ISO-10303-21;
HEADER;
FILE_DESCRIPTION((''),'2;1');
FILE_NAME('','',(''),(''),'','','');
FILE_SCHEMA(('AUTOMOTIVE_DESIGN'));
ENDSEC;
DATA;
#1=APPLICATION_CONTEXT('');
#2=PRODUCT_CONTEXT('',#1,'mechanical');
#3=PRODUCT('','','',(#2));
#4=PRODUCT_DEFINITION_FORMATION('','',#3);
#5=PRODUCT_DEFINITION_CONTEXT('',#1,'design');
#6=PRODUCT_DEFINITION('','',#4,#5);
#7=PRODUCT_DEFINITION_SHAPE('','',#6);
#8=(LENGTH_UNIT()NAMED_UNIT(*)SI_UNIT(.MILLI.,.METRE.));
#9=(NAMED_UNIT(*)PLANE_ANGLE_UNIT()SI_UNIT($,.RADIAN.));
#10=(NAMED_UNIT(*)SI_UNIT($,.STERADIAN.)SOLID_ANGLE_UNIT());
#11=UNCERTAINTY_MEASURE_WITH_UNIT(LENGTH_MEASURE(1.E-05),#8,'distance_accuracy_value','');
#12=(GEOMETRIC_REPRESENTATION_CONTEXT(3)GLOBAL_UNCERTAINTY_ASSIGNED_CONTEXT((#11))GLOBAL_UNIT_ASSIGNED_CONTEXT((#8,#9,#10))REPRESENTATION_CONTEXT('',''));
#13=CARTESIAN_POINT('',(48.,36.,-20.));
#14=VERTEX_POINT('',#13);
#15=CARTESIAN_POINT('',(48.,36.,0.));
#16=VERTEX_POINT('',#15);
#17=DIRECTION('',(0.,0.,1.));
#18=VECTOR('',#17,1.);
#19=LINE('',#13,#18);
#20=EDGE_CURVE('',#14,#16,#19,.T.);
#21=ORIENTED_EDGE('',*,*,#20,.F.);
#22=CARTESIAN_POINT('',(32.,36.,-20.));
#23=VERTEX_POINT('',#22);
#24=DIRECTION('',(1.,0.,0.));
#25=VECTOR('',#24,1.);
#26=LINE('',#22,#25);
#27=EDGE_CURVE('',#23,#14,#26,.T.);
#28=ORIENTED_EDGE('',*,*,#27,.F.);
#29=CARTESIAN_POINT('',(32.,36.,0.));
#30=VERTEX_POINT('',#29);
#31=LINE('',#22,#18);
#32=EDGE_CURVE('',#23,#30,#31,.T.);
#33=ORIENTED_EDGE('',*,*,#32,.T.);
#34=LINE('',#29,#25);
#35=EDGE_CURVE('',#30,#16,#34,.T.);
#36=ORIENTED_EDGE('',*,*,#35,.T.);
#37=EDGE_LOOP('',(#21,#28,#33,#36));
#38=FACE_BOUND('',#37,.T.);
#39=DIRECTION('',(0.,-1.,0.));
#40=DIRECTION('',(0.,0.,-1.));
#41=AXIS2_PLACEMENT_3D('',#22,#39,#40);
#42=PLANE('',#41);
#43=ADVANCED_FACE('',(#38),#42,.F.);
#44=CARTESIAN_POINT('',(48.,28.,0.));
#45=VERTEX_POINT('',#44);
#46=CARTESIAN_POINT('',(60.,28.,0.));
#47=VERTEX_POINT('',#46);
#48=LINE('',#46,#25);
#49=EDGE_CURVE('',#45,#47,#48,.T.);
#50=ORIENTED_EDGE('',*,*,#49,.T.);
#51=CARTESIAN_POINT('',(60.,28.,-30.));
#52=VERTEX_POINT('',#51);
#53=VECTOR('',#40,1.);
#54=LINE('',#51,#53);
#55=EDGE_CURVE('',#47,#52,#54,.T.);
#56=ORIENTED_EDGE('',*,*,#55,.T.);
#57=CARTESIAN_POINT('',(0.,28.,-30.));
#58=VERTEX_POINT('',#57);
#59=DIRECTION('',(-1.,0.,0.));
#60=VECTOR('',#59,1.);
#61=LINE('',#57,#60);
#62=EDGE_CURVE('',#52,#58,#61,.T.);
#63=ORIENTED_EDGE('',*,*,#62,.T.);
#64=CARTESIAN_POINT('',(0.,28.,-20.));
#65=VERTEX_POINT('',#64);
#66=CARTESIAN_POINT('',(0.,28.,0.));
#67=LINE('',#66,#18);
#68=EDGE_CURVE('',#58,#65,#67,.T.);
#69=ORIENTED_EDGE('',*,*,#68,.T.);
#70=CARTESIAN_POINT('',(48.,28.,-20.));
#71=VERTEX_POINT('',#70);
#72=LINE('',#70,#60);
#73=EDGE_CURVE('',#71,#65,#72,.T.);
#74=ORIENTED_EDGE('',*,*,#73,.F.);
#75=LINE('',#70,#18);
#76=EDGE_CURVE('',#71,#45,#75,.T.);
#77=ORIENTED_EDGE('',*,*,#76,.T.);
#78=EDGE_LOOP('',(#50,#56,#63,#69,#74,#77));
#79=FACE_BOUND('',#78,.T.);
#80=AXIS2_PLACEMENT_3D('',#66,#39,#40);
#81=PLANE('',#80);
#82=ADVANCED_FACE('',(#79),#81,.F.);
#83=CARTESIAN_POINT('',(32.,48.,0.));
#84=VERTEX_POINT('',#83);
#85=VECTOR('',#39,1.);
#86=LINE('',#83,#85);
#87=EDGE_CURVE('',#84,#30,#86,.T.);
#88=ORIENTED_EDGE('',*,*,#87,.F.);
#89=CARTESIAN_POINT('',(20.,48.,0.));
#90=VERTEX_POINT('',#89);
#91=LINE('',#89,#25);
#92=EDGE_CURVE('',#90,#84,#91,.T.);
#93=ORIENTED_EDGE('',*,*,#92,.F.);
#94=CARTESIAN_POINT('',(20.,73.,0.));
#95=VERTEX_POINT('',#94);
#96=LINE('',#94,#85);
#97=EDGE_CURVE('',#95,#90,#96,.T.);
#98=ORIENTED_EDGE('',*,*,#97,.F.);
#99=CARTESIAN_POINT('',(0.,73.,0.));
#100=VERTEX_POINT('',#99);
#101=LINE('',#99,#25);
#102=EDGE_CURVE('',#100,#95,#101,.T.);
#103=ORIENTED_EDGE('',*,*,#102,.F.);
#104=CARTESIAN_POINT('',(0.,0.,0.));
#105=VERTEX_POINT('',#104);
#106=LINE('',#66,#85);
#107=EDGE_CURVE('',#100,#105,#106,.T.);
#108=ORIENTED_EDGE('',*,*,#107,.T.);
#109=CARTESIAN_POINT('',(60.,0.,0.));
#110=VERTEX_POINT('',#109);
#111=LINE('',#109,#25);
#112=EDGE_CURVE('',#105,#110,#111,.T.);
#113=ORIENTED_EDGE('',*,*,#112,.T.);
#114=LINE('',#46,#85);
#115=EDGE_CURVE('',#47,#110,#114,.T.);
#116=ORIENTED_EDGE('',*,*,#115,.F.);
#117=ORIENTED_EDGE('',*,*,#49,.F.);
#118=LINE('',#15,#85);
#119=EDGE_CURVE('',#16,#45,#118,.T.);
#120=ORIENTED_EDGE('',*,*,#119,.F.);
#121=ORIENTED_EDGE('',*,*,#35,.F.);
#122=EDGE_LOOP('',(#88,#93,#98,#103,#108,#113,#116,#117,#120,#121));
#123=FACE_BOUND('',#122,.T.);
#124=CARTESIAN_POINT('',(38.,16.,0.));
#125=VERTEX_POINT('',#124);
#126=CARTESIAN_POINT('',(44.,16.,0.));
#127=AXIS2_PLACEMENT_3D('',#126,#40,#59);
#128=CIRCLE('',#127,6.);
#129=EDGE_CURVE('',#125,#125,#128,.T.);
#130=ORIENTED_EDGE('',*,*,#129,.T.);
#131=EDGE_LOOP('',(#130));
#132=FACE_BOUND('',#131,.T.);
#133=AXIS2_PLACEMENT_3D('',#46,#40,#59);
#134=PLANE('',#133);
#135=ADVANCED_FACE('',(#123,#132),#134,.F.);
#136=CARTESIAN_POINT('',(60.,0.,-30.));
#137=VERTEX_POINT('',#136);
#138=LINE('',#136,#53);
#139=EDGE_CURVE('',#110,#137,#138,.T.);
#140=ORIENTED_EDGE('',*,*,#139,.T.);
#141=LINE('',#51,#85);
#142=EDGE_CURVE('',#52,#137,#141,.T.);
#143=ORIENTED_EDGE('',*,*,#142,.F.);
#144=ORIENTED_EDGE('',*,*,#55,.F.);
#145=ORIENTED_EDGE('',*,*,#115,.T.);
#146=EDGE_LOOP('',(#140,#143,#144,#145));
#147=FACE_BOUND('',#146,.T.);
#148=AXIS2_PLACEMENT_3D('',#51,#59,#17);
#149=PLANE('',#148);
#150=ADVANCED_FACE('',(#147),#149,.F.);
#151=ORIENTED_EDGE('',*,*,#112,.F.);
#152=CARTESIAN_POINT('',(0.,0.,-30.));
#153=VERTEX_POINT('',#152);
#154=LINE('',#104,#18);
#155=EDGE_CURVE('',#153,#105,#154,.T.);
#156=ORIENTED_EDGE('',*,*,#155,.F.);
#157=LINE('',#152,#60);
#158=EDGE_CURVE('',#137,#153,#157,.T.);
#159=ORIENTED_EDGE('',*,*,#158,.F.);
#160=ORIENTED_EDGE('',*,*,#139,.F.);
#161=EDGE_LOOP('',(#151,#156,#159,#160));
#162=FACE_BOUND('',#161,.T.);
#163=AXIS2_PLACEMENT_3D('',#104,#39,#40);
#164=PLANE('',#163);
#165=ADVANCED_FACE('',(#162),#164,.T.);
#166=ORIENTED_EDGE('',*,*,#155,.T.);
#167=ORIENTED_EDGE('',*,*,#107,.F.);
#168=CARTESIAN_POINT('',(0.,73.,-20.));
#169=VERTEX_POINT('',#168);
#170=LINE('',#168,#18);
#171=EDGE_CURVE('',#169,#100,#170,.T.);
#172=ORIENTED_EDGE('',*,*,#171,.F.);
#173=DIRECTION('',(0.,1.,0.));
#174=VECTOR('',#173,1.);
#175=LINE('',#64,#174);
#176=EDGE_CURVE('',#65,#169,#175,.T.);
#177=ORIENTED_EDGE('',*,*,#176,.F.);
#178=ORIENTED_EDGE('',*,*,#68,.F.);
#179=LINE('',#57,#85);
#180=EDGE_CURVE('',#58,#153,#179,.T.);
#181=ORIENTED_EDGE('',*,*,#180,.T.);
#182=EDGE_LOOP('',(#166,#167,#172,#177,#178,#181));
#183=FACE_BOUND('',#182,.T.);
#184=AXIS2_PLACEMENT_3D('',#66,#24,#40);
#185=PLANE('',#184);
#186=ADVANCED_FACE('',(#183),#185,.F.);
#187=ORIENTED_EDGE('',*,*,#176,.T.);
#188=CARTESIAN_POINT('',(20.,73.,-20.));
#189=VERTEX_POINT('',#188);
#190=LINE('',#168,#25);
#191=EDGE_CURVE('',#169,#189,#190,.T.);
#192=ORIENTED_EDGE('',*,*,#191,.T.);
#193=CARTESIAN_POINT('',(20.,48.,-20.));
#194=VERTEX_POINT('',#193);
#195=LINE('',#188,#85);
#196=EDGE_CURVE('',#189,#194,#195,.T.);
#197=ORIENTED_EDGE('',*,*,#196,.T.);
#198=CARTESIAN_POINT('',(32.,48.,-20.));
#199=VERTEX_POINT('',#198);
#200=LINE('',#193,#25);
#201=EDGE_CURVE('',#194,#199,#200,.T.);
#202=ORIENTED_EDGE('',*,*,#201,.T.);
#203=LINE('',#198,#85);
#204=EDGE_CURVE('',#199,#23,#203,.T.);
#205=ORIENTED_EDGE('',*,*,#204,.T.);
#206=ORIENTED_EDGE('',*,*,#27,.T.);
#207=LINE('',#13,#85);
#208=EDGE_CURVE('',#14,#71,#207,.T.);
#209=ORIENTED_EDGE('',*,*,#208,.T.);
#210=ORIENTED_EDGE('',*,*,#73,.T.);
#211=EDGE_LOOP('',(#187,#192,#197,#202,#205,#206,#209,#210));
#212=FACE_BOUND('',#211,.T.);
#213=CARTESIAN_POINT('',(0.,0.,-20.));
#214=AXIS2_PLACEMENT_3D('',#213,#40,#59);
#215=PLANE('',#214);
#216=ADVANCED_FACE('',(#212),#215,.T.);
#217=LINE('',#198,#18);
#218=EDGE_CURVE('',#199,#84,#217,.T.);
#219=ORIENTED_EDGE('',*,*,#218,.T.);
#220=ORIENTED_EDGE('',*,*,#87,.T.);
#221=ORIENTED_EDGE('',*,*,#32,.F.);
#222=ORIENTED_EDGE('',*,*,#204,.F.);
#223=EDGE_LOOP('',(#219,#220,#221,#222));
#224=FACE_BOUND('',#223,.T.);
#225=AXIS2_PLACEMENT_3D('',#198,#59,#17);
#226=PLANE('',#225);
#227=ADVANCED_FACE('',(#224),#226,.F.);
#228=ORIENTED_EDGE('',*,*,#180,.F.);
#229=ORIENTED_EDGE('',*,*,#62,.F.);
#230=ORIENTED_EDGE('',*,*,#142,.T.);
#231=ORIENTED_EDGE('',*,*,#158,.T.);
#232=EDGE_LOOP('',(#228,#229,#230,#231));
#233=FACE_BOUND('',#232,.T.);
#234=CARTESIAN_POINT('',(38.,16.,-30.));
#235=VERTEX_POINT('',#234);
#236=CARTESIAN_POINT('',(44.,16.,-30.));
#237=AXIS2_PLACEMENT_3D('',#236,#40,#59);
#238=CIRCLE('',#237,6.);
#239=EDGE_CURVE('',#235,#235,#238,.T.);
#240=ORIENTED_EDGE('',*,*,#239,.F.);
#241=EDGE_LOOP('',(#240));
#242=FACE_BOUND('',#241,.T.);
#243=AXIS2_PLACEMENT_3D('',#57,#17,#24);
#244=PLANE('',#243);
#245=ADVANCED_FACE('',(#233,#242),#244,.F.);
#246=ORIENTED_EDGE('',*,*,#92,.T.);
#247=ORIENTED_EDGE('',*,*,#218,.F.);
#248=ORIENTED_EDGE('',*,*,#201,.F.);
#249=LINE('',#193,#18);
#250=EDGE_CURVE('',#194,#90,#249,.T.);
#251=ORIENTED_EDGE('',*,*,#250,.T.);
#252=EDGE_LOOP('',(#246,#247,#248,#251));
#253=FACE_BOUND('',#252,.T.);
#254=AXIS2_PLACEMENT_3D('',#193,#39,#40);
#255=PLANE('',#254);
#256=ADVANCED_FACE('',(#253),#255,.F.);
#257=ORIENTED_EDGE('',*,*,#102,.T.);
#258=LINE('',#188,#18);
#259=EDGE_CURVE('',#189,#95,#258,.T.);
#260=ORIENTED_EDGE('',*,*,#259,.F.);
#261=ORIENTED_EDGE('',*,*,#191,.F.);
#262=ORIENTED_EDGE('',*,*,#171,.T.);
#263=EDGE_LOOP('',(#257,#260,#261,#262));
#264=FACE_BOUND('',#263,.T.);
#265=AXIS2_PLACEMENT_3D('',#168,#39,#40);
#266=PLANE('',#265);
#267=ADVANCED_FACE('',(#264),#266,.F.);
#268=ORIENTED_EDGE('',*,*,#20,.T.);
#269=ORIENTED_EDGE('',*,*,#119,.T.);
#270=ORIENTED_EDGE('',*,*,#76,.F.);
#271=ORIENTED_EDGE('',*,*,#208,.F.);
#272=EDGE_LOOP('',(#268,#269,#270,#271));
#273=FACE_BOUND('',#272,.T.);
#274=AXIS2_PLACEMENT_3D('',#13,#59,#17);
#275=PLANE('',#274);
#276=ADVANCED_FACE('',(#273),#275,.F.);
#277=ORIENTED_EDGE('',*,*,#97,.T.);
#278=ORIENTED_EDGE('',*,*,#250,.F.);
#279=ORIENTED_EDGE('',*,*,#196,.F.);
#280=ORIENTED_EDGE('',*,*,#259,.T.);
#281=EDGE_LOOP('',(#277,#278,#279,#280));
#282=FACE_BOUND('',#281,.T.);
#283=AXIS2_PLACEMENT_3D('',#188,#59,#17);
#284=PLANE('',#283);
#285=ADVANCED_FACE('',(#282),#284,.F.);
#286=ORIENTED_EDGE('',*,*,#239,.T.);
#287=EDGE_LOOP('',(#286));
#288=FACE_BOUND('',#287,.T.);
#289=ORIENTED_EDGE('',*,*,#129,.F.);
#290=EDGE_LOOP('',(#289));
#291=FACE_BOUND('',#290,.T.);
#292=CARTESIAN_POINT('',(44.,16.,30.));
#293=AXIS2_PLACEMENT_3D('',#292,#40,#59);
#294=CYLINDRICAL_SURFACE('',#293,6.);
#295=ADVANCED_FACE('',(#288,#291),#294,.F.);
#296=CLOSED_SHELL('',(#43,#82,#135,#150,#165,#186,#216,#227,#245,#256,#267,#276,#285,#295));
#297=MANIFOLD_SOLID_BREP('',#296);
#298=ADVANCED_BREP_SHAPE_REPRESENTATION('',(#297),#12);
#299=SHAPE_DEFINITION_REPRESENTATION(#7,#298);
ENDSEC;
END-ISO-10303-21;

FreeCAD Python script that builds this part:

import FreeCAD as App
import Part
import Sketcher
from FreeCAD import Vector
Q = App.Units.Quantity


def add_polygon(sketch, points):
    """Adds a closed chain of lines whose ends are joined by coincident constraints."""
    first, n = sketch.GeometryCount, len(points)
    for a, b in zip(points, points[1:] + points[:1]):
        sketch.addGeometry(Part.LineSegment(App.Vector(*a, 0), App.Vector(*b, 0)), False)
    for i in range(n):
        sketch.addConstraint(Sketcher.Constraint("Coincident", first + i, 2, first + (i + 1) % n, 1))

doc = App.newDocument("Part")
body = doc.addObject("PartDesign::Body", "Body")

# Sketch on XZ plane
sketch1 = doc.addObject("Sketcher::SketchObject", "Sketch")
body.addObject(sketch1)
sketch1.AttachmentSupport = (doc.XZ_Plane, [""])
sketch1.MapMode = "FlatFace"
add_polygon(sketch1, [(0, -30), (0, 0), (60, 0), (60, -30)])  # lines 0-3
sketch1.addConstraint([
    Sketcher.Constraint("Vertical", 0),
    Sketcher.Constraint("Horizontal", 1),
    Sketcher.Constraint("Vertical", 2),
    Sketcher.Constraint("Horizontal", 3),
    Sketcher.Constraint("Coincident", 0, 2, -1, 1),
    Sketcher.Constraint("DistanceX", 1, 1, 1, 2, Q("60 mm")),
    Sketcher.Constraint("DistanceY", 0, 1, 0, 2, Q("30 mm")),
])
pad1 = doc.addObject("PartDesign::Pad", "Pad")
body.addObject(pad1)
pad1.Profile = sketch1
pad1.Length = 28
pad1.Reversed = True

# Sketch on XY plane
sketch2 = doc.addObject("Sketcher::SketchObject", "Sketch001")
body.addObject(sketch2)
sketch2.AttachmentSupport = (doc.XY_Plane, [""])
sketch2.MapMode = "FlatFace"
add_polygon(sketch2, [(0, 73), (0, 28), (48, 28), (48, 36), (32, 36), (32, 48), (20, 48), (20, 73)])  # lines 0-7
sketch2.addConstraint([
    Sketcher.Constraint("Vertical", 0),
    Sketcher.Constraint("Horizontal", 1),
    Sketcher.Constraint("Vertical", 2),
    Sketcher.Constraint("Horizontal", 3),
    Sketcher.Constraint("Vertical", 4),
    Sketcher.Constraint("Horizontal", 5),
    Sketcher.Constraint("Vertical", 6),
    Sketcher.Constraint("Horizontal", 7),
    Sketcher.Constraint("PointOnObject", 0, 2, -2),
    Sketcher.Constraint("Equal", 5, 4),
    Sketcher.Constraint("DistanceX", 1, 1, 1, 2, Q("48 mm")),
    Sketcher.Constraint("DistanceX", 3, 2, 3, 1, Q("16 mm")),
    Sketcher.Constraint("DistanceX", 5, 2, 5, 1, Q("12 mm")),
    Sketcher.Constraint("DistanceY", 0, 2, 0, 1, Q("45 mm")),
    Sketcher.Constraint("DistanceY", 2, 1, 2, 2, Q("8 mm")),
    Sketcher.Constraint("DistanceY", -1, 1, 0, 2, Q("28 mm")),
])
pad2 = doc.addObject("PartDesign::Pad", "Pad001")
body.addObject(pad2)
pad2.Profile = sketch2
pad2.Length = 20
pad2.Reversed = True

# Sketch on XY plane
sketch3 = doc.addObject("Sketcher::SketchObject", "Sketch002")
body.addObject(sketch3)
sketch3.AttachmentSupport = (doc.XY_Plane, [""])
sketch3.MapMode = "FlatFace"
sketch3.AttachmentOffset = App.Placement(Vector(0, 0, -30), App.Rotation())
sketch3.addGeometry(Part.Circle(Vector(44, 16, 0), Vector(0, 0, 1), 6), False)
sketch3.addConstraint([
    Sketcher.Constraint("Diameter", 0, Q("12 mm")),
    Sketcher.Constraint("DistanceX", -1, 1, 0, 3, Q("44 mm")),
    Sketcher.Constraint("DistanceY", -1, 1, 0, 3, Q("16 mm")),
])
pocket1 = doc.addObject("PartDesign::Pocket", "Pocket")
body.addObject(pocket1)
pocket1.Profile = sketch3
pocket1.Length = 60
pocket1.Reversed = True

doc.recompute()
